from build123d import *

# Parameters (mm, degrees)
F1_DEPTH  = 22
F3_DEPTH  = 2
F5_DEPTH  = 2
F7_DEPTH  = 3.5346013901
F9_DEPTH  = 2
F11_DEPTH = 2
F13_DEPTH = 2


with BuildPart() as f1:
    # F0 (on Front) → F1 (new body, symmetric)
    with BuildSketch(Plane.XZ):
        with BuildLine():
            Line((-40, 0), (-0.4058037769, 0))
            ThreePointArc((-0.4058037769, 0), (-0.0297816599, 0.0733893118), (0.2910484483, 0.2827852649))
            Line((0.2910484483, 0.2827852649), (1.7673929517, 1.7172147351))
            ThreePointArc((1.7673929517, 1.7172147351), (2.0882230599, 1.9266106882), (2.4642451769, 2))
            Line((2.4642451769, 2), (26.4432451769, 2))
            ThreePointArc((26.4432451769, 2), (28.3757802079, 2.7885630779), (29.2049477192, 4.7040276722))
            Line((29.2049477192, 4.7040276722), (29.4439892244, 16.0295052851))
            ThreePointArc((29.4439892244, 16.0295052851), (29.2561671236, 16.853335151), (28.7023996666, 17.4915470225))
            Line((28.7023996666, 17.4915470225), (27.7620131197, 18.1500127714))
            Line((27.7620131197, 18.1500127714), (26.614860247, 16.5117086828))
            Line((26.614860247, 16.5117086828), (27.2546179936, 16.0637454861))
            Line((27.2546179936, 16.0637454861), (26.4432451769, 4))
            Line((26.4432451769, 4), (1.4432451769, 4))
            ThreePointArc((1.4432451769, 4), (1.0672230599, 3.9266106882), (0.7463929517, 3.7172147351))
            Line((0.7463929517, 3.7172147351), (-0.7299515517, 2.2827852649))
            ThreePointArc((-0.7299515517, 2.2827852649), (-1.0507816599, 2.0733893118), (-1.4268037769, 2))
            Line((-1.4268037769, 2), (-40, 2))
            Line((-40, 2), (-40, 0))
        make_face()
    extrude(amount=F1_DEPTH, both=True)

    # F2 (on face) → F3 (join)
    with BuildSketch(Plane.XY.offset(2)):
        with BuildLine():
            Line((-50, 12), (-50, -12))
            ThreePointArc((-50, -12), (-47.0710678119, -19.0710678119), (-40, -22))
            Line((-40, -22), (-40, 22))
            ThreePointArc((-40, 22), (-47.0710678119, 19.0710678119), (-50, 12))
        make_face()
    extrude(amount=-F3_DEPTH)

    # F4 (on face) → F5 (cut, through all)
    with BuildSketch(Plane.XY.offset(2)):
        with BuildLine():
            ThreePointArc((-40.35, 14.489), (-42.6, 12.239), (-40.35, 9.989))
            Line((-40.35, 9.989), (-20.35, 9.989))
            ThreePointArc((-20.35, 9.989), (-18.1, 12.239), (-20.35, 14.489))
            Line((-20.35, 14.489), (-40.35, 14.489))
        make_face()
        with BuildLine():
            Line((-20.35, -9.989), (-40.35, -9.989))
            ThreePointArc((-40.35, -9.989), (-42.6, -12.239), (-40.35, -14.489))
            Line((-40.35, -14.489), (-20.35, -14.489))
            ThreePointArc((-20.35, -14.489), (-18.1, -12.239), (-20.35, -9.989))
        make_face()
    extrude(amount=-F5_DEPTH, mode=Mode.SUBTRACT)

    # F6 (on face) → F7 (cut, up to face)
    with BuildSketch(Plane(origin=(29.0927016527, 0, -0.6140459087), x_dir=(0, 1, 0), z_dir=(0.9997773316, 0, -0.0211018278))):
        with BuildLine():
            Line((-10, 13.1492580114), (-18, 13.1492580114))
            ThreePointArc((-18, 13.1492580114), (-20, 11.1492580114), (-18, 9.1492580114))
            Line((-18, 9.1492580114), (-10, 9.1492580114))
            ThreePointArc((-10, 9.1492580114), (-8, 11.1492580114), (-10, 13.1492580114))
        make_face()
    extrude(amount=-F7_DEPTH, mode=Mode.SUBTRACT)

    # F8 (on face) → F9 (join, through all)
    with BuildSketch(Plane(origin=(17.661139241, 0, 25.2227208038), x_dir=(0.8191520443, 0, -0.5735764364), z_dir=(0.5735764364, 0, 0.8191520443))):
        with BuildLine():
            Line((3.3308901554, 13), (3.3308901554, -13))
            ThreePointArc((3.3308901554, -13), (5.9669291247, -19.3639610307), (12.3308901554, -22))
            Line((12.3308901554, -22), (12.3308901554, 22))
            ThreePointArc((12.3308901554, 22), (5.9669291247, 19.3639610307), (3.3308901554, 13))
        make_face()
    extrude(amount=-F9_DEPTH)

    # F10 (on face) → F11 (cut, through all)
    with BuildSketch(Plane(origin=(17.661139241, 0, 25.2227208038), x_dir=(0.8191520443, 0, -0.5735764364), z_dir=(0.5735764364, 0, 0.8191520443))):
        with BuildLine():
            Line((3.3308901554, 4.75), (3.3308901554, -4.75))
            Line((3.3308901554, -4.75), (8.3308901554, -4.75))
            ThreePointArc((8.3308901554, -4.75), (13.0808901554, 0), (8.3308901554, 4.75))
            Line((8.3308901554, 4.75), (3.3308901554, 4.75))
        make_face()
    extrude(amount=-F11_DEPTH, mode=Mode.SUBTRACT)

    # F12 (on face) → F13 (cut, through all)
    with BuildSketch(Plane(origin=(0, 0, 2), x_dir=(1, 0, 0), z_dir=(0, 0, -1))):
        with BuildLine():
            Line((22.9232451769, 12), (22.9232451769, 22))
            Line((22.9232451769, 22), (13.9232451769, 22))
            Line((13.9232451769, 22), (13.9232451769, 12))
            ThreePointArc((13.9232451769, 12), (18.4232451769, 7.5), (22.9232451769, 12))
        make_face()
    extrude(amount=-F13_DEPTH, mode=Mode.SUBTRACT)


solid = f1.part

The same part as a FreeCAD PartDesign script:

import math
import FreeCAD as App
import Part
import Sketcher
Q = App.Units.Quantity

doc = App.newDocument("Part")
body = doc.addObject("PartDesign::Body", "Body")

sketch1 = body.newObject("Sketcher::SketchObject", "Sketch")
sketch1.AttachmentSupport = (doc.getObject("XZ_Plane"), [""])
sketch1.MapMode = "FlatFace"
sketch1.addGeometry([
    Part.LineSegment(App.Vector(-40, 0, 0), App.Vector(-0.4, 0, 0)),
    Part.ArcOfCircle(Part.Circle(App.Vector(-0.4, 1, 0), App.Vector(0, 0, 1), 1), math.radians(-90), math.radians(-46)),
    Part.LineSegment(App.Vector(0.3, 0.3, 0), App.Vector(1.8, 1.7, 0)),
    Part.ArcOfCircle(Part.Circle(App.Vector(2.5, 1, 0), App.Vector(0, 0, 1), 1), math.radians(90), math.radians(134)),
    Part.LineSegment(App.Vector(2.5, 2, 0), App.Vector(26.4, 2, 0)),
    Part.ArcOfCircle(Part.Circle(App.Vector(26.4, 4.8, 0), App.Vector(0, 0, 1), 2.8), math.radians(-90), math.radians(-1)),
    Part.LineSegment(App.Vector(29.2, 4.7, 0), App.Vector(29.4, 16, 0)),
    Part.ArcOfCircle(Part.Circle(App.Vector(27.7, 16.1, 0), App.Vector(0, 0, 1), 1.7), math.radians(-1), math.radians(55)),
    Part.LineSegment(App.Vector(28.7, 17.5, 0), App.Vector(27.8, 18.2, 0)),
    Part.LineSegment(App.Vector(27.8, 18.2, 0), App.Vector(26.6, 16.5, 0)),
    Part.LineSegment(App.Vector(26.6, 16.5, 0), App.Vector(27.3, 16.1, 0)),
    Part.LineSegment(App.Vector(27.3, 16.1, 0), App.Vector(26.4, 4, 0)),
    Part.LineSegment(App.Vector(26.4, 4, 0), App.Vector(1.4, 4, 0)),
    Part.ArcOfCircle(Part.Circle(App.Vector(1.4, 3, 0), App.Vector(0, 0, 1), 1), math.radians(90), math.radians(134)),
    Part.LineSegment(App.Vector(0.7, 3.7, 0), App.Vector(-0.7, 2.3, 0)),
    Part.ArcOfCircle(Part.Circle(App.Vector(-1.4, 3, 0), App.Vector(0, 0, 1), 1), math.radians(-90), math.radians(-46)),
    Part.LineSegment(App.Vector(-1.4, 2, 0), App.Vector(-40, 2, 0)),
    Part.LineSegment(App.Vector(-40, 2, 0), App.Vector(-40, 0, 0)),
], False)
sketch1.addConstraint([
    Sketcher.Constraint("Tangent", 0, 2, 1, 1),
    Sketcher.Constraint("Tangent", 1, 2, 2, 1),
    Sketcher.Constraint("Tangent", 2, 2, 3, 2),
    Sketcher.Constraint("Tangent", 3, 1, 4, 1),
    Sketcher.Constraint("Tangent", 4, 2, 5, 1),
    Sketcher.Constraint("Tangent", 5, 2, 6, 1),
    Sketcher.Constraint("Tangent", 6, 2, 7, 1),
    Sketcher.Constraint("Tangent", 7, 2, 8, 1),
    Sketcher.Constraint("Coincident", 8, 2, 9, 1),
    Sketcher.Constraint("Coincident", 9, 2, 10, 1),
    Sketcher.Constraint("Coincident", 10, 2, 11, 1),
    Sketcher.Constraint("Coincident", 11, 2, 12, 1),
    Sketcher.Constraint("Tangent", 12, 2, 13, 1),
    Sketcher.Constraint("Tangent", 13, 2, 14, 1),
    Sketcher.Constraint("Tangent", 14, 2, 15, 2),
    Sketcher.Constraint("Tangent", 15, 1, 16, 1),
    Sketcher.Constraint("Coincident", 16, 2, 17, 1),
    Sketcher.Constraint("Coincident", 17, 2, 0, 1),
    Sketcher.Constraint("Horizontal", 0),
    Sketcher.Constraint("Horizontal", 4),
    Sketcher.Constraint("Horizontal", 12),
    Sketcher.Constraint("Horizontal", 16),
    Sketcher.Constraint("Vertical", 17),
    Sketcher.Constraint("Equal", 1, 3),
    Sketcher.Constraint("Equal", 3, 13),
    Sketcher.Constraint("Equal", 13, 15),
    Sketcher.Constraint("PointOnObject", 0, 2, -1),
    Sketcher.Constraint("Perpendicular", 8, 9),
    Sketcher.Constraint("Perpendicular", 9, 10),
    Sketcher.Constraint("Parallel", 2, 14),
    Sketcher.Constraint("Horizontal", 1, 3, 3, 3),
    Sketcher.Constraint("Horizontal", 13, 3, 15, 3),
    Sketcher.Constraint("Horizontal", 4, 2, 15, 1),
    Sketcher.Constraint("Vertical", 4, 2, 11, 2),
    Sketcher.Constraint("Radius", 1, Q("1 mm")),
    Sketcher.Constraint("DistanceX", 12, 2, 12, 1, Q("25 mm")),
    Sketcher.Constraint("Angle", 8, Q("145 deg")),
    Sketcher.Constraint("Radius", 7, Q("1.74 mm")),
    Sketcher.Constraint("Distance", 9, Q("2 mm")),
    Sketcher.Constraint("DistanceX", 16, 2, -1, 1, Q("40 mm")),
    Sketcher.Constraint("DistanceX", 4, 1, 4, 2, Q("23.979 mm")),
    Sketcher.Constraint("Distance", 6, Q("11.328 mm")),
    Sketcher.Constraint("Distance", 8, Q("1.148 mm")),
    Sketcher.Constraint("Distance", 10, Q("0.781 mm")),
    Sketcher.Constraint("Distance", 11, Q("12.091 mm")),
    Sketcher.Constraint("Radius", 5, Q("2.762318 mm")),
    Sketcher.Constraint("DistanceX", -1, 1, 7, 2, Q("28.7024 mm")),
    Sketcher.Constraint("Distance", 2, Q("2.058441 mm")),
])
pad1 = body.newObject("PartDesign::Pad", "Pad")
pad1.Profile = sketch1
pad1.Length = 44
pad1.Midplane = True

sketch2 = body.newObject("Sketcher::SketchObject", "Sketch001")
sketch2.AttachmentSupport = (doc.getObject("XY_Plane"), [""])
sketch2.MapMode = "FlatFace"
sketch2.AttachmentOffset = App.Placement(App.Vector(0, 0, 2), App.Rotation())
sketch2.addGeometry([
    Part.LineSegment(App.Vector(-50, 12, 0), App.Vector(-50, -12, 0)),
    Part.ArcOfCircle(Part.Circle(App.Vector(-40, -12, 0), App.Vector(0, 0, 1), 10), math.radians(180), math.radians(270)),
    Part.LineSegment(App.Vector(-40, -22, 0), App.Vector(-40, 22, 0)),
    Part.ArcOfCircle(Part.Circle(App.Vector(-40, 12, 0), App.Vector(0, 0, 1), 10), math.radians(90), math.radians(180)),
], False)
sketch2.addConstraint([
    Sketcher.Constraint("Tangent", 0, 2, 1, 1),
    Sketcher.Constraint("Coincident", 1, 2, 2, 1),
    Sketcher.Constraint("Coincident", 2, 2, 3, 1),
    Sketcher.Constraint("Tangent", 3, 2, 0, 1),
    Sketcher.Constraint("Vertical", 0),
    Sketcher.Constraint("Vertical", 2),
    Sketcher.Constraint("Equal", 1, 3),
    Sketcher.Constraint("Vertical", 3, 3, 1, 2),
    Sketcher.Constraint("Radius", 1, Q("10 mm")),
    Sketcher.Constraint("DistanceY", 0, 2, 0, 1, Q("24 mm")),
    Sketcher.Constraint("DistanceX", 1, 3, -1, 1, Q("40 mm")),
    Sketcher.Constraint("DistanceY", 1, 3, -1, 1, Q("12 mm")),
])
pad2 = body.newObject("PartDesign::Pad", "Pad001")
pad2.Profile = sketch2
pad2.Length = 2
pad2.Reversed = True

sketch3 = body.newObject("Sketcher::SketchObject", "Sketch002")
sketch3.AttachmentSupport = (doc.getObject("XY_Plane"), [""])
sketch3.MapMode = "FlatFace"
sketch3.AttachmentOffset = App.Placement(App.Vector(0, 0, 2), App.Rotation())
sketch3.addGeometry([
    Part.ArcOfCircle(Part.Circle(App.Vector(-40.4, 12.2, 0), App.Vector(0, 0, 1), 2.2), math.radians(90), math.radians(270)),
    Part.LineSegment(App.Vector(-40.4, 10, 0), App.Vector(-20.4, 10, 0)),
    Part.ArcOfCircle(Part.Circle(App.Vector(-20.4, 12.2, 0), App.Vector(0, 0, 1), 2.2), math.radians(-90), math.radians(90)),
    Part.LineSegment(App.Vector(-20.4, 14.5, 0), App.Vector(-40.4, 14.5, 0)),
    Part.LineSegment(App.Vector(-20.4, -10, 0), App.Vector(-40.4, -10, 0)),
    Part.ArcOfCircle(Part.Circle(App.Vector(-40.4, -12.2, 0), App.Vector(0, 0, 1), 2.2), math.radians(90), math.radians(270)),
    Part.LineSegment(App.Vector(-40.4, -14.5, 0), App.Vector(-20.4, -14.5, 0)),
    Part.ArcOfCircle(Part.Circle(App.Vector(-20.4, -12.2, 0), App.Vector(0, 0, 1), 2.2), math.radians(-90), math.radians(90)),
], False)
sketch3.addConstraint([
    Sketcher.Constraint("Tangent", 0, 2, 1, 1),
    Sketcher.Constraint("Tangent", 1, 2, 2, 1),
    Sketcher.Constraint("Tangent", 2, 2, 3, 1),
    Sketcher.Constraint("Tangent", 3, 2, 0, 1),
    Sketcher.Constraint("Tangent", 4, 2, 5, 1),
    Sketcher.Constraint("Tangent", 5, 2, 6, 1),
    Sketcher.Constraint("Tangent", 6, 2, 7, 1),
    Sketcher.Constraint("Tangent", 7, 2, 4, 1),
    Sketcher.Constraint("Horizontal", 1),
    Sketcher.Constraint("Horizontal", 3),
    Sketcher.Constraint("Horizontal", 4),
    Sketcher.Constraint("Horizontal", 6),
    Sketcher.Constraint("Equal", 2, 5),
    Sketcher.Constraint("Symmetric", 0, 3, 5, 3, -1),
    Sketcher.Constraint("Vertical", 2, 3, 7, 3),
    Sketcher.Constraint("DistanceX", 1, 1, 1, 2, Q("20 mm")),
    Sketcher.Constraint("Radius", 0, Q("2.25 mm")),
    Sketcher.Constraint("DistanceX", 0, 3, -1, 1, Q("40.35 mm")),
    Sketcher.Constraint("DistanceY", -1, 1, 0, 3, Q("12.239 mm")),
])
pocket1 = body.newObject("PartDesign::Pocket", "Pocket")
pocket1.Profile = sketch3
pocket1.Type = "ThroughAll"

sketch4 = body.newObject("Sketcher::SketchObject", "Sketch003")
sketch4.Placement = App.Placement(App.Vector(29.092702, 0, -0.614046), App.Rotation(App.Vector(0, 1, 0), App.Vector(0.021101828, 0, 0.999777332), App.Vector(0.999777332, 0, -0.021101828), "ZXY"))
sketch4.addGeometry([
    Part.LineSegment(App.Vector(-10, 13.1, 0), App.Vector(-18, 13.1, 0)),
    Part.ArcOfCircle(Part.Circle(App.Vector(-18, 11.1, 0), App.Vector(0, 0, 1), 2), math.radians(90), math.radians(270)),
    Part.LineSegment(App.Vector(-18, 9.1, 0), App.Vector(-10, 9.1, 0)),
    Part.ArcOfCircle(Part.Circle(App.Vector(-10, 11.1, 0), App.Vector(0, 0, 1), 2), math.radians(-90), math.radians(90)),
], False)
sketch4.addConstraint([
    Sketcher.Constraint("Tangent", 0, 2, 1, 1),
    Sketcher.Constraint("Tangent", 1, 2, 2, 1),
    Sketcher.Constraint("Tangent", 2, 2, 3, 1),
    Sketcher.Constraint("Tangent", 3, 2, 0, 1),
    Sketcher.Constraint("Horizontal", 0),
    Sketcher.Constraint("Horizontal", 2),
    Sketcher.Constraint("Radius", 1, Q("2 mm")),
    Sketcher.Constraint("DistanceX", 0, 2, 0, 1, Q("8 mm")),
    Sketcher.Constraint("DistanceX", 1, 3, -1, 1, Q("18 mm")),
    Sketcher.Constraint("DistanceY", -1, 1, 1, 3, Q("11.149258 mm")),
])
pocket2 = body.newObject("PartDesign::Pocket", "Pocket001")
pocket2.Profile = sketch4
pocket2.Length = 3.534601

sketch5 = body.newObject("Sketcher::SketchObject", "Sketch004")
sketch5.Placement = App.Placement(App.Vector(17.661139, 0, 25.222721), App.Rotation(App.Vector(0.819152044, 0, -0.573576436), App.Vector(0, 0.999999999, 0), App.Vector(0.573576436, 0, 0.819152044), "ZXY"))
sketch5.addGeometry([
    Part.LineSegment(App.Vector(3, 13, 0), App.Vector(3, -13, 0)),
    Part.ArcOfCircle(Part.Circle(App.Vector(12, -13, 0), App.Vector(0, 0, 1), 9), math.radians(180), math.radians(270)),
    Part.LineSegment(App.Vector(12, -22, 0), App.Vector(12, 22, 0)),
    Part.ArcOfCircle(Part.Circle(App.Vector(12, 13, 0), App.Vector(0, 0, 1), 9), math.radians(90), math.radians(180)),
], False)
sketch5.addConstraint([
    Sketcher.Constraint("Tangent", 0, 2, 1, 1),
    Sketcher.Constraint("Coincident", 1, 2, 2, 1),
    Sketcher.Constraint("Coincident", 2, 2, 3, 1),
    Sketcher.Constraint("Tangent", 3, 2, 0, 1),
    Sketcher.Constraint("Vertical", 0),
    Sketcher.Constraint("Vertical", 2),
    Sketcher.Constraint("Equal", 1, 3),
    Sketcher.Constraint("Vertical", 3, 3, 1, 2),
    Sketcher.Constraint("Radius", 1, Q("9 mm")),
    Sketcher.Constraint("DistanceY", 0, 2, 0, 1, Q("26 mm")),
    Sketcher.Constraint("DistanceY", 1, 3, -1, 1, Q("13 mm")),
    Sketcher.Constraint("DistanceX", -1, 1, 1, 3, Q("12.33089 mm")),
])
pad3 = body.newObject("PartDesign::Pad", "Pad002")
pad3.Profile = sketch5
pad3.Length = 2
pad3.Reversed = True

sketch6 = body.newObject("Sketcher::SketchObject", "Sketch005")
sketch6.Placement = App.Placement(App.Vector(17.661139, 0, 25.222721), App.Rotation(App.Vector(0.819152044, 0, -0.573576436), App.Vector(0, 0.999999999, 0), App.Vector(0.573576436, 0, 0.819152044), "ZXY"))
sketch6.addGeometry([
    Part.LineSegment(App.Vector(3.3, 4.7, 0), App.Vector(3.3, -4.7, 0)),
    Part.LineSegment(App.Vector(3.3, -4.7, 0), App.Vector(8.3, -4.7, 0)),
    Part.ArcOfCircle(Part.Circle(App.Vector(8.3, 0, 0), App.Vector(0, 0, 1), 4.8), math.radians(-90), math.radians(90)),
    Part.LineSegment(App.Vector(8.3, 4.7, 0), App.Vector(3.3, 4.7, 0)),
], False)
sketch6.addConstraint([
    Sketcher.Constraint("Coincident", 0, 2, 1, 1),
    Sketcher.Constraint("Tangent", 1, 2, 2, 1),
    Sketcher.Constraint("Tangent", 2, 2, 3, 1),
    Sketcher.Constraint("Coincident", 3, 2, 0, 1),
    Sketcher.Constraint("Vertical", 0),
    Sketcher.Constraint("Horizontal", 1),
    Sketcher.Constraint("Horizontal", 3),
    Sketcher.Constraint("PointOnObject", 2, 3, -1),
    Sketcher.Constraint("DistanceX", 1, 1, 1, 2, Q("5 mm")),
    Sketcher.Constraint("Radius", 2, Q("4.75 mm")),
    Sketcher.Constraint("DistanceX", -1, 1, 2, 3, Q("8.33089 mm")),
])
pocket3 = body.newObject("PartDesign::Pocket", "Pocket002")
pocket3.Profile = sketch6
pocket3.Length = 2

sketch7 = body.newObject("Sketcher::SketchObject", "Sketch006")
sketch7.AttachmentSupport = (doc.getObject("XY_Plane"), [""])
sketch7.MapMode = "FlatFace"
sketch7.AttachmentOffset = App.Placement(App.Vector(0, 0, 2), App.Rotation())
sketch7.addGeometry([
    Part.LineSegment(App.Vector(22.9, -12, 0), App.Vector(22.9, -22, 0)),
    Part.LineSegment(App.Vector(22.9, -22, 0), App.Vector(13.9, -22, 0)),
    Part.LineSegment(App.Vector(13.9, -22, 0), App.Vector(13.9, -12, 0)),
    Part.ArcOfCircle(Part.Circle(App.Vector(18.4, -12, 0), App.Vector(0, 0, 1), 4.5), math.radians(0), math.radians(180)),
], False)
sketch7.addConstraint([
    Sketcher.Constraint("Coincident", 0, 2, 1, 1),
    Sketcher.Constraint("Coincident", 1, 2, 2, 1),
    Sketcher.Constraint("Tangent", 2, 2, 3, 2),
    Sketcher.Constraint("Tangent", 3, 1, 0, 1),
    Sketcher.Constraint("Vertical", 0),
    Sketcher.Constraint("Horizontal", 1),
    Sketcher.Constraint("Vertical", 2),
    Sketcher.Constraint("Radius", 3, Q("4.5 mm")),
    Sketcher.Constraint("DistanceY", 0, 2, 0, 1, Q("10 mm")),
    Sketcher.Constraint("DistanceY", 3, 3, -1, 1, Q("12 mm")),
    Sketcher.Constraint("DistanceX", -1, 1, 3, 3, Q("18.423245 mm")),
])
pocket4 = body.newObject("PartDesign::Pocket", "Pocket003")
pocket4.Profile = sketch7
pocket4.Length = 2
pocket4.Reversed = True

doc.recompute()
